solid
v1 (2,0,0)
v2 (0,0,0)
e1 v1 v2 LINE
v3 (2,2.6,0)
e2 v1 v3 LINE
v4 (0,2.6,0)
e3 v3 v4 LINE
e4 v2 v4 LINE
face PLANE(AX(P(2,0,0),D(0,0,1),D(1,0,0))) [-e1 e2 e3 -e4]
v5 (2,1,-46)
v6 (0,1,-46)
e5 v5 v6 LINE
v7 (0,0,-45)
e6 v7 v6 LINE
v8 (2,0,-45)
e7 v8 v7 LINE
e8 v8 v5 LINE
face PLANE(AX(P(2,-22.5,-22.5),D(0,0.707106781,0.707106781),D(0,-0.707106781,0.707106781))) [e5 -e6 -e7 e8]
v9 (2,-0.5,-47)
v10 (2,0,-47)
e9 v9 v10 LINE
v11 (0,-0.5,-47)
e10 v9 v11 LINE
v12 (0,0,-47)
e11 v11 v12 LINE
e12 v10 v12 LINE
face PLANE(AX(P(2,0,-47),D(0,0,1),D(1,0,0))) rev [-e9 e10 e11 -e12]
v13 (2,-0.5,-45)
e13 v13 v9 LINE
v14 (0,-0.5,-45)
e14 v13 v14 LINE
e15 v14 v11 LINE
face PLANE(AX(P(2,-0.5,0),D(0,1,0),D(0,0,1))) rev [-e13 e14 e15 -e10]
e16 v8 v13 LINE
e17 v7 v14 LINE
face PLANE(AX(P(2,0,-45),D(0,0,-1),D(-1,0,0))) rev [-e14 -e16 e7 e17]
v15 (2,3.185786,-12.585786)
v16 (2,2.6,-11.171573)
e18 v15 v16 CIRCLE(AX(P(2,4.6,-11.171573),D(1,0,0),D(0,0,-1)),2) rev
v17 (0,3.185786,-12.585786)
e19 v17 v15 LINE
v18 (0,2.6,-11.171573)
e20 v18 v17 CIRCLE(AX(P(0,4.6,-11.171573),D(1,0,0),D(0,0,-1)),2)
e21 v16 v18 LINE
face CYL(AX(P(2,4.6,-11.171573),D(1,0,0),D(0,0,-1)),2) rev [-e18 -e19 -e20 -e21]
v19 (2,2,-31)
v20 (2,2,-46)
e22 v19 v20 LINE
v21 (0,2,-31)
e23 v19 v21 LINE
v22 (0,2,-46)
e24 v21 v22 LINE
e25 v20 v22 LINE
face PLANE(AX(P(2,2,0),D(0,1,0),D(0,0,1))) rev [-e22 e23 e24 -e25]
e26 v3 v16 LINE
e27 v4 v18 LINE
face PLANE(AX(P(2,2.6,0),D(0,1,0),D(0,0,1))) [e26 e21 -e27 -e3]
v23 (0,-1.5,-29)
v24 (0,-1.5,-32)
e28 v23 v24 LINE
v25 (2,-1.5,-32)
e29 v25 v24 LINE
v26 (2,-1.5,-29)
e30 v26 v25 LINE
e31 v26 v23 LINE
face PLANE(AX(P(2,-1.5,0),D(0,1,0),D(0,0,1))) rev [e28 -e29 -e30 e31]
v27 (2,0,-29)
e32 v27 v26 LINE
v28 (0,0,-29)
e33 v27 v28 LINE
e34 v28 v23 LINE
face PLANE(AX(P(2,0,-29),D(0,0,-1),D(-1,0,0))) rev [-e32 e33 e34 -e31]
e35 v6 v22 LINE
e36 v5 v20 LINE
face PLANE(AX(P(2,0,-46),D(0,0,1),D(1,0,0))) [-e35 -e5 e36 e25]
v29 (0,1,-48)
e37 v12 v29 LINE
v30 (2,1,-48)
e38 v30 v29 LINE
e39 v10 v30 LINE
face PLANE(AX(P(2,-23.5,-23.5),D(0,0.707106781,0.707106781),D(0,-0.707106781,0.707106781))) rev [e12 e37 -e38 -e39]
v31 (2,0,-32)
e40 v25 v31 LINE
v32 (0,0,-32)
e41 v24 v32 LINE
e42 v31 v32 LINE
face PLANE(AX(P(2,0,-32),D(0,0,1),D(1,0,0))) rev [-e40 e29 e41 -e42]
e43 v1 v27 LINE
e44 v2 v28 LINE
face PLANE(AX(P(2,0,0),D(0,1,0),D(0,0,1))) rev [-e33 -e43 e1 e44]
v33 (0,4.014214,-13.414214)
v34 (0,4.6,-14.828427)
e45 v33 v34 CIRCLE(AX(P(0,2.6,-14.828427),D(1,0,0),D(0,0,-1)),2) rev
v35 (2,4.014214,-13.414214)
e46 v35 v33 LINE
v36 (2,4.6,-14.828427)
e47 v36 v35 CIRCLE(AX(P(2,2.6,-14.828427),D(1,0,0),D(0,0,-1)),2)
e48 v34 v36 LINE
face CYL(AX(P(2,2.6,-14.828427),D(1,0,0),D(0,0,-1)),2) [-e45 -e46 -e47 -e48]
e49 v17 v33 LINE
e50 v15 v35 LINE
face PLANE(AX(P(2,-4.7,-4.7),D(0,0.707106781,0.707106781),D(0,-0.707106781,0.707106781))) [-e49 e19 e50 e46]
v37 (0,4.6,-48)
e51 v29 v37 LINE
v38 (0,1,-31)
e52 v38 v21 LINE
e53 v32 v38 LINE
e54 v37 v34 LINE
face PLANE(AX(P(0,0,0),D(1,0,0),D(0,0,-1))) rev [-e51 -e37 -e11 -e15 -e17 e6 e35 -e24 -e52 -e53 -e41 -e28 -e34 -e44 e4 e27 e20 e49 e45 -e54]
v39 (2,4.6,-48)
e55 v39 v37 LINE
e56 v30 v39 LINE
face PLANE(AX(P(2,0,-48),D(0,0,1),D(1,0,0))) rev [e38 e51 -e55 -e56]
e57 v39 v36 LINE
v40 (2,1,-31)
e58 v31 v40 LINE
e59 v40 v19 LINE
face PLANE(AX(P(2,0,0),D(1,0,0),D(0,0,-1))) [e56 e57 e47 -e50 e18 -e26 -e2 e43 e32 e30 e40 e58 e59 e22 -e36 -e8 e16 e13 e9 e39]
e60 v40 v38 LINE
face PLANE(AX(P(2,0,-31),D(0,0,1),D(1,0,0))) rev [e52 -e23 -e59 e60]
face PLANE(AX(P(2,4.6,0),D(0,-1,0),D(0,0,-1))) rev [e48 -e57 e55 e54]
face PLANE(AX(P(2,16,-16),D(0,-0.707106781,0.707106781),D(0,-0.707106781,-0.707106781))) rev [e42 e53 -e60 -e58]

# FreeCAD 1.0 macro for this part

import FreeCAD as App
import Part
import Sketcher

V = App.Vector
Q = App.Units.Quantity


def edges_at(feature, points):
    """Names of the edges that pass closest to the given points."""
    edges = feature.Shape.Edges
    near = lambda p: min(range(len(edges)), key=lambda i: edges[i].distToShape(Part.Vertex(*p))[0])
    return sorted({f"Edge{near(p) + 1}" for p in points})

doc = App.newDocument("Part")
body = doc.addObject("PartDesign::Body", "Body")

# Sketch on YZ plane
sketch1 = body.newObject("Sketcher::SketchObject", "Sketch")
sketch1.AttachmentSupport = (doc.getObject("YZ_Plane"), [""])
sketch1.MapMode = "FlatFace"
sketch1.addGeometry(Part.LineSegment(V(1, -48, 0), V(4.6, -48, 0)), False)
sketch1.addGeometry(Part.LineSegment(V(4.6, -48, 0), V(4.6, -14, 0)), False)
sketch1.addGeometry(Part.LineSegment(V(4.6, -14, 0), V(2.6, -12, 0)), False)
sketch1.addGeometry(Part.LineSegment(V(2.6, -12, 0), V(2.6, 0, 0)), False)
sketch1.addGeometry(Part.LineSegment(V(2.6, 0, 0), V(0, 0, 0)), False)
sketch1.addGeometry(Part.LineSegment(V(0, 0, 0), V(0, -29, 0)), False)
sketch1.addGeometry(Part.LineSegment(V(0, -29, 0), V(-1.5, -29, 0)), False)
sketch1.addGeometry(Part.LineSegment(V(-1.5, -29, 0), V(-1.5, -32, 0)), False)
sketch1.addGeometry(Part.LineSegment(V(-1.5, -32, 0), V(0, -32, 0)), False)
sketch1.addGeometry(Part.LineSegment(V(0, -32, 0), V(1, -31, 0)), False)
sketch1.addGeometry(Part.LineSegment(V(1, -31, 0), V(2, -31, 0)), False)
sketch1.addGeometry(Part.LineSegment(V(2, -31, 0), V(2, -46, 0)), False)
sketch1.addGeometry(Part.LineSegment(V(2, -46, 0), V(1, -46, 0)), False)
sketch1.addGeometry(Part.LineSegment(V(1, -46, 0), V(0, -45, 0)), False)
sketch1.addGeometry(Part.LineSegment(V(0, -45, 0), V(-0.5, -45, 0)), False)
sketch1.addGeometry(Part.LineSegment(V(-0.5, -45, 0), V(-0.5, -47, 0)), False)
sketch1.addGeometry(Part.LineSegment(V(-0.5, -47, 0), V(0, -47, 0)), False)
sketch1.addGeometry(Part.LineSegment(V(0, -47, 0), V(1, -48, 0)), False)
sketch1.addConstraint(Sketcher.Constraint("Coincident", 0, 2, 1, 1))
sketch1.addConstraint(Sketcher.Constraint("Coincident", 1, 2, 2, 1))
sketch1.addConstraint(Sketcher.Constraint("Coincident", 2, 2, 3, 1))
sketch1.addConstraint(Sketcher.Constraint("Coincident", 3, 2, 4, 1))
sketch1.addConstraint(Sketcher.Constraint("Coincident", 4, 2, 5, 1))
sketch1.addConstraint(Sketcher.Constraint("Coincident", 5, 2, 6, 1))
sketch1.addConstraint(Sketcher.Constraint("Coincident", 6, 2, 7, 1))
sketch1.addConstraint(Sketcher.Constraint("Coincident", 7, 2, 8, 1))
sketch1.addConstraint(Sketcher.Constraint("Coincident", 8, 2, 9, 1))
sketch1.addConstraint(Sketcher.Constraint("Coincident", 9, 2, 10, 1))
sketch1.addConstraint(Sketcher.Constraint("Coincident", 10, 2, 11, 1))
sketch1.addConstraint(Sketcher.Constraint("Coincident", 11, 2, 12, 1))
sketch1.addConstraint(Sketcher.Constraint("Coincident", 12, 2, 13, 1))
sketch1.addConstraint(Sketcher.Constraint("Coincident", 13, 2, 14, 1))
sketch1.addConstraint(Sketcher.Constraint("Coincident", 14, 2, 15, 1))
sketch1.addConstraint(Sketcher.Constraint("Coincident", 15, 2, 16, 1))
sketch1.addConstraint(Sketcher.Constraint("Coincident", 16, 2, 17, 1))
sketch1.addConstraint(Sketcher.Constraint("Coincident", 17, 2, 0, 1))
sketch1.addConstraint(Sketcher.Constraint("Horizontal", 0))
sketch1.addConstraint(Sketcher.Constraint("Vertical", 1))
sketch1.addConstraint(Sketcher.Constraint("Vertical", 3))
sketch1.addConstraint(Sketcher.Constraint("Horizontal", 4))
sketch1.addConstraint(Sketcher.Constraint("Vertical", 5))
sketch1.addConstraint(Sketcher.Constraint("Horizontal", 6))
sketch1.addConstraint(Sketcher.Constraint("Vertical", 7))
sketch1.addConstraint(Sketcher.Constraint("Horizontal", 8))
sketch1.addConstraint(Sketcher.Constraint("Horizontal", 10))
sketch1.addConstraint(Sketcher.Constraint("Vertical", 11))
sketch1.addConstraint(Sketcher.Constraint("Horizontal", 12))
sketch1.addConstraint(Sketcher.Constraint("Horizontal", 14))
sketch1.addConstraint(Sketcher.Constraint("Vertical", 15))
sketch1.addConstraint(Sketcher.Constraint("Horizontal", 16))
sketch1.addConstraint(Sketcher.Constraint("Coincident", 4, 2, -1, 1))
sketch1.addConstraint(Sketcher.Constraint("PointOnObject", 8, 2, -2))
sketch1.addConstraint(Sketcher.Constraint("PointOnObject", 13, 2, -2))
sketch1.addConstraint(Sketcher.Constraint("PointOnObject", 16, 2, -2))
sketch1.addConstraint(Sketcher.Constraint("Perpendicular", 2, 9))
sketch1.addConstraint(Sketcher.Constraint("Perpendicular", 9, 13))
sketch1.addConstraint(Sketcher.Constraint("Parallel", 13, 17))
sketch1.addConstraint(Sketcher.Constraint("Vertical", 9, 2, 12, 2))
sketch1.addConstraint(Sketcher.Constraint("Vertical", 12, 2, 17, 2))
sketch1.addConstraint(Sketcher.Constraint("Equal", 9, 13))
sketch1.addConstraint(Sketcher.Constraint("DistanceX", 10, 1, 10, 2, Q("1 mm")))
sketch1.addConstraint(Sketcher.Constraint("DistanceY", 1, 1, 1, 2, Q("34 mm")))
sketch1.addConstraint(Sketcher.Constraint("DistanceY", 3, 1, 3, 2, Q("12 mm")))
sketch1.addConstraint(Sketcher.Constraint("DistanceY", 5, 2, 5, 1, Q("29 mm")))
sketch1.addConstraint(Sketcher.Constraint("DistanceY", 7, 2, 7, 1, Q("3 mm")))
sketch1.addConstraint(Sketcher.Constraint("DistanceY", 11, 2, 11, 1, Q("15 mm")))
sketch1.addConstraint(Sketcher.Constraint("DistanceY", 15, 2, 15, 1, Q("2 mm")))
sketch1.addConstraint(Sketcher.Constraint("DistanceX", 0, 1, 0, 2, Q("3.6 mm")))
sketch1.addConstraint(Sketcher.Constraint("DistanceX", 4, 2, 4, 1, Q("2.6 mm")))
sketch1.addConstraint(Sketcher.Constraint("DistanceX", 6, 2, 6, 1, Q("1.5 mm")))
sketch1.addConstraint(Sketcher.Constraint("DistanceX", 14, 2, 14, 1, Q("0.5 mm")))
pad1 = body.newObject("PartDesign::Pad", "Pad")
pad1.Profile = sketch1
pad1.Length = 2
doc.recompute()

fillet = body.newObject("PartDesign::Fillet", "Fillet")
fillet.Base = (pad1, edges_at(pad1, [(1, 2.6, -12), (1, 4.6, -14)]))
fillet.Radius = 2

doc.recompute()
